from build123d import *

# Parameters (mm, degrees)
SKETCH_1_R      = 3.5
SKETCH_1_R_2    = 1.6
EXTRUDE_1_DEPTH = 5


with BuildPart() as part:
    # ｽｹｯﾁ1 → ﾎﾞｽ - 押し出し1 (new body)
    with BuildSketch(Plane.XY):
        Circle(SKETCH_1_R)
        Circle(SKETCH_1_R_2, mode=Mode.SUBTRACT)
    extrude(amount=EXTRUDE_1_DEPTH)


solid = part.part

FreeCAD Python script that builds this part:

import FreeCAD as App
import Part
import Sketcher
from FreeCAD import Vector

doc = App.newDocument("Part")
params = doc.addObject("Spreadsheet::Sheet", "Params")
for row, (alias, value) in enumerate([
    ("sketch1_diameter", "7 mm"),
    ("sketch1_diameter2", "3.2 mm"),
    ("pad1_length", "5 mm"),
], start=1):
    params.set(f"A{row}", alias)
    params.set(f"B{row}", "=" + value)
    params.setAlias(f"B{row}", alias)

body = doc.addObject("PartDesign::Body", "Body")

# Sketch on XY plane
sketch1 = body.newObject("Sketcher::SketchObject", "Sketch")
sketch1.AttachmentSupport = (doc.getObject("XY_Plane"), [""])
sketch1.MapMode = "FlatFace"
sketch1.addGeometry([
    Part.Circle(Vector(0, 0, 0), Vector(0, 0, 1), 3.5),
    Part.Circle(Vector(0, 0, 0), Vector(0, 0, 1), 1.6),
], False)
sketch1.addConstraint([
    Sketcher.Constraint("Coincident", 0, 3, -1, 1),
    Sketcher.Constraint("Coincident", 1, 3, -1, 1),
    Sketcher.Constraint("Diameter", 0, 7.0),
    Sketcher.Constraint("Diameter", 1, 3.2),
])
sketch1.setExpression("Constraints[2]", "Params.sketch1_diameter")
sketch1.setExpression("Constraints[3]", "Params.sketch1_diameter2")
pad1 = body.newObject("PartDesign::Pad", "Pad")
pad1.Profile = sketch1
pad1.setExpression("Length", "Params.pad1_length")

doc.recompute()
